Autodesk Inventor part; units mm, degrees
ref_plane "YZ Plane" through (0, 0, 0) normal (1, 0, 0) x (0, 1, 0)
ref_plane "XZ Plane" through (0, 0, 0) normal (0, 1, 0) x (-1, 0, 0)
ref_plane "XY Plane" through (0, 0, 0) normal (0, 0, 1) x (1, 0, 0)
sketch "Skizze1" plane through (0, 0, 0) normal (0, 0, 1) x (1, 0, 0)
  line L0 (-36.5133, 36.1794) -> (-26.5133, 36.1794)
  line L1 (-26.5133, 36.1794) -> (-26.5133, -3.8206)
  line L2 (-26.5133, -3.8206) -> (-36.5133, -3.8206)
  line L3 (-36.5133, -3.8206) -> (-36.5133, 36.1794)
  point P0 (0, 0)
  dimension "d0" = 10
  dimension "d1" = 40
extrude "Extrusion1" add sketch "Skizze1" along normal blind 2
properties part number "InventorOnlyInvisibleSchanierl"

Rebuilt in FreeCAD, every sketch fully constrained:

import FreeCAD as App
import Part
import Sketcher
Q = App.Units.Quantity


def add_polygon(sketch, points):
    """Adds a closed chain of lines whose ends are joined by coincident constraints."""
    first, n = sketch.GeometryCount, len(points)
    for a, b in zip(points, points[1:] + points[:1]):
        sketch.addGeometry(Part.LineSegment(App.Vector(*a, 0), App.Vector(*b, 0)), False)
    for i in range(n):
        sketch.addConstraint(Sketcher.Constraint("Coincident", first + i, 2, first + (i + 1) % n, 1))

doc = App.newDocument("Part")
body = doc.addObject("PartDesign::Body", "Body")

sketch1 = body.newObject("Sketcher::SketchObject", "Sketch")
sketch1.AttachmentSupport = (doc.getObject("XY_Plane"), [""])
sketch1.MapMode = "FlatFace"
add_polygon(sketch1, [(-27, 36), (-37, 36), (-37, -4), (-27, -4)])
sketch1.addConstraint(Sketcher.Constraint("Horizontal", 0))
sketch1.addConstraint(Sketcher.Constraint("Vertical", 1))
sketch1.addConstraint(Sketcher.Constraint("Horizontal", 2))
sketch1.addConstraint(Sketcher.Constraint("Vertical", 3))
sketch1.addConstraint(Sketcher.Constraint("DistanceX", 0, 2, 0, 1, Q("10 mm")))
sketch1.addConstraint(Sketcher.Constraint("DistanceY", 1, 2, 1, 1, Q("40 mm")))
sketch1.addConstraint(Sketcher.Constraint("DistanceX", 0, 2, -1, 1, Q("36.5133 mm")))
sketch1.addConstraint(Sketcher.Constraint("DistanceY", -1, 1, 0, 2, Q("36.1794 mm")))
pad1 = body.newObject("PartDesign::Pad", "Pad")
pad1.Profile = sketch1
pad1.Length = 2

doc.recompute()
